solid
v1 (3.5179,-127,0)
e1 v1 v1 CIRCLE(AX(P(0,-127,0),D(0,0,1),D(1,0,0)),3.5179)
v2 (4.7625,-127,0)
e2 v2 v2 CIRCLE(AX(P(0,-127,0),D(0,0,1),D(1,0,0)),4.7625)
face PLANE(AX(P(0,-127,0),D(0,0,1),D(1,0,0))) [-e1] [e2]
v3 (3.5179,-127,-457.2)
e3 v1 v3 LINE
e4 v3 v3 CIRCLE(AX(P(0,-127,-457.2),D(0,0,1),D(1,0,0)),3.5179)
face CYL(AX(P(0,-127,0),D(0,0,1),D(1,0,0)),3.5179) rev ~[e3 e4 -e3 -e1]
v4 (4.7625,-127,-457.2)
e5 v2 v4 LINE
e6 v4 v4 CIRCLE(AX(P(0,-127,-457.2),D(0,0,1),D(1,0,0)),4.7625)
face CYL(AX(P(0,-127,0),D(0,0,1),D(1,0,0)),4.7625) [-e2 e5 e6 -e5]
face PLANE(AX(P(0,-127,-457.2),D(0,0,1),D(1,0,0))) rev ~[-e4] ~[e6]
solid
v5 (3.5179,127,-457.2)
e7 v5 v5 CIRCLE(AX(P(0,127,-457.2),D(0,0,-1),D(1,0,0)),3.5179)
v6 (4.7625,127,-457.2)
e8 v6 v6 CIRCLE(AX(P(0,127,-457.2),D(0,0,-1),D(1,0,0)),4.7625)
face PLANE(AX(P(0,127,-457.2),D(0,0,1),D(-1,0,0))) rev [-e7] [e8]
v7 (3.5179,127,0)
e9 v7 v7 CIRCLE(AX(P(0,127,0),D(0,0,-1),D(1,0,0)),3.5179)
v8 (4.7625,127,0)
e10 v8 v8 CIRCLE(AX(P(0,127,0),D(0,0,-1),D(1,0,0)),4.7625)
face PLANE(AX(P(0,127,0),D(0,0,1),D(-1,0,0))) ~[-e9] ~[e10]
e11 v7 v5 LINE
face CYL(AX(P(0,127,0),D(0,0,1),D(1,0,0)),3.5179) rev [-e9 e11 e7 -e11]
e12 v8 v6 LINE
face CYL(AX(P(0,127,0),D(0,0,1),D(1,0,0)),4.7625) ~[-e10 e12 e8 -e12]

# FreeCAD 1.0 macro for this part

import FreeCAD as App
import Part
import Sketcher
Q = App.Units.Quantity

doc = App.newDocument("Part")
body = doc.addObject("PartDesign::Body", "Body")

# Sketch on XY plane
sketch1 = doc.addObject("Sketcher::SketchObject", "Sketch")
body.addObject(sketch1)
sketch1.AttachmentSupport = (doc.XY_Plane, [""])
sketch1.MapMode = "FlatFace"
sketch1.addGeometry(Part.Circle(App.Vector(0, -127, 0), App.Vector(0, 0, 1), 4.7625), False)
sketch1.addGeometry(Part.Circle(App.Vector(0, -127, 0), App.Vector(0, 0, 1), 3.5179), False)
sketch1.addConstraint(Sketcher.Constraint("Coincident", 1, 3, 0, 3))
sketch1.addConstraint(Sketcher.Constraint("PointOnObject", 0, 3, -2))
sketch1.addConstraint(Sketcher.Constraint("Diameter", 0, Q("0.375 in")))
sketch1.addConstraint(Sketcher.Constraint("Diameter", 1, Q("0.277 in")))
sketch1.addConstraint(Sketcher.Constraint("DistanceY", 0, 3, -1, 1, Q("5 in")))
pad1 = doc.addObject("PartDesign::Pad", "Pad")
body.addObject(pad1)
pad1.Profile = sketch1
pad1.Length = Q("18 in")
pad1.Reversed = True
body2 = doc.addObject("PartDesign::Body", "Body001")
doc.recompute()

mirroring = doc.addObject("Part::Mirroring", "Mirroring")
mirroring.Source = body
mirroring.Base = App.Vector(0, 0, 0)
mirroring.Normal = App.Vector(0, -1, 0)
body2.BaseFeature = mirroring
doc.recompute()
mirroring.Visibility = False

doc.recompute()
